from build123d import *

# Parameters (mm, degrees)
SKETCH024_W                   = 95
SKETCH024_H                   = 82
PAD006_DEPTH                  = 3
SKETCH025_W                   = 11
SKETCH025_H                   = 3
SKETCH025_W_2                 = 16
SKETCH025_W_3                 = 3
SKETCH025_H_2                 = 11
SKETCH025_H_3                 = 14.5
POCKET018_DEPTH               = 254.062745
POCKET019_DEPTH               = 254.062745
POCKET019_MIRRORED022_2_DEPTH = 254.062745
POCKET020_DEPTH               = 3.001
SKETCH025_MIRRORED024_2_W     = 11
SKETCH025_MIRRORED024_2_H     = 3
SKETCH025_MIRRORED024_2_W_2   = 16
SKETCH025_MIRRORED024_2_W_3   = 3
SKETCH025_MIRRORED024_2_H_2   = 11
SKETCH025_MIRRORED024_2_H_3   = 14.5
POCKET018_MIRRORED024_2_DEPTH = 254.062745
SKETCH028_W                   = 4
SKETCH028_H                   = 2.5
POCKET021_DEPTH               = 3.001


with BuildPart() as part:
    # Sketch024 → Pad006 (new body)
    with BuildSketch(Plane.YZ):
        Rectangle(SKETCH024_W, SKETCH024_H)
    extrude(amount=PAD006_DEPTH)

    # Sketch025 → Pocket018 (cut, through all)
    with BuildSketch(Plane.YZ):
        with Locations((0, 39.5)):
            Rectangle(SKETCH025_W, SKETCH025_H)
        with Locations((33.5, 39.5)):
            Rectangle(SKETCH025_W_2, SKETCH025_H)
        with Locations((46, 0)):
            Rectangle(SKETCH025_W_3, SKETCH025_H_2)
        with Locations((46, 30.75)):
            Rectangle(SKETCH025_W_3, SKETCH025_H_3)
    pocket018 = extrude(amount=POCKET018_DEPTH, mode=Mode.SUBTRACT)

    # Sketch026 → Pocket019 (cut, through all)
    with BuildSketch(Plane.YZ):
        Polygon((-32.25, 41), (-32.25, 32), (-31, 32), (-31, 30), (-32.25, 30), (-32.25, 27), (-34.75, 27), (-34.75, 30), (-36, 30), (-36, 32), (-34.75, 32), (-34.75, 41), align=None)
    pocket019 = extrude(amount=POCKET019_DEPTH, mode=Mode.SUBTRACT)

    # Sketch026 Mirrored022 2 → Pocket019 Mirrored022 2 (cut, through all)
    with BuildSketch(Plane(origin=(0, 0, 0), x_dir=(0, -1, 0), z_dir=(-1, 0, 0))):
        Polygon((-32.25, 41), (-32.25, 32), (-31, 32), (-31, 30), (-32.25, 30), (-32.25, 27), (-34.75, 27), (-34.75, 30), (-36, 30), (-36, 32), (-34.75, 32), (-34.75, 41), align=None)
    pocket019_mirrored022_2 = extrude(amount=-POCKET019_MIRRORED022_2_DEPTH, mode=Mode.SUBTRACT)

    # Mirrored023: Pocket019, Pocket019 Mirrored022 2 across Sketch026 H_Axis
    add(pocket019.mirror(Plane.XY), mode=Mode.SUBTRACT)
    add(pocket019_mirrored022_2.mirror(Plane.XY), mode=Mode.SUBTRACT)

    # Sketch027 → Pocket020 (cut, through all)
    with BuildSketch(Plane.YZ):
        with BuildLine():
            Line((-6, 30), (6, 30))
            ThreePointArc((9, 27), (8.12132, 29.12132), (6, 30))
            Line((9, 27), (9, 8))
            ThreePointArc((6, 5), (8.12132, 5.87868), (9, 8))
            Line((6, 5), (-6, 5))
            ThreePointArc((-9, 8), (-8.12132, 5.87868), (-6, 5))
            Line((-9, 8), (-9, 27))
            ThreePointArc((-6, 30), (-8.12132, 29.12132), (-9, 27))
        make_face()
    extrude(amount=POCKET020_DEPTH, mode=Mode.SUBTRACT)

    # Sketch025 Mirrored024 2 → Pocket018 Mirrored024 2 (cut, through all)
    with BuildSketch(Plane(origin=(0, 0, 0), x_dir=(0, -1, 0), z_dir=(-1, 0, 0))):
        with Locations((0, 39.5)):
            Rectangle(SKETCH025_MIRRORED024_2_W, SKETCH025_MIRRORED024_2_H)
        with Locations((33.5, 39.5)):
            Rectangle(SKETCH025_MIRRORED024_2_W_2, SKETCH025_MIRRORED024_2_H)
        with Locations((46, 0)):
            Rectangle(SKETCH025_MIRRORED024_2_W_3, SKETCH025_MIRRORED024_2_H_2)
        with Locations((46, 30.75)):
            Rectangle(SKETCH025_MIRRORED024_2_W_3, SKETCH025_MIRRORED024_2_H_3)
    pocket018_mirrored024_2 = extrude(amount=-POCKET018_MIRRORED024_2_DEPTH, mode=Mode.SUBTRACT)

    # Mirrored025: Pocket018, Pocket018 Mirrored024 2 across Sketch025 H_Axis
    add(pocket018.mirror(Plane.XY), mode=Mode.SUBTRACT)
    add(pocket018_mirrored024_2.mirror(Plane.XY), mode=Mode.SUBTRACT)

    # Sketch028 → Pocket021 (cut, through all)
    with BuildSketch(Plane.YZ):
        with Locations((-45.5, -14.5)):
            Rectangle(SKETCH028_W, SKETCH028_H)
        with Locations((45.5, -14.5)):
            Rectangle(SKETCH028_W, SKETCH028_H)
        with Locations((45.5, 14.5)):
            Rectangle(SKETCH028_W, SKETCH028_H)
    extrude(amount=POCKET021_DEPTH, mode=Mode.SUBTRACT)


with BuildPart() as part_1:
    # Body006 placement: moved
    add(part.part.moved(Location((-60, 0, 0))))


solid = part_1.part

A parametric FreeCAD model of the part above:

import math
import FreeCAD as App
import Part
import Sketcher

V = App.Vector

doc = App.newDocument("Part")
body = doc.addObject("PartDesign::Body", "Body")

# Sketch on YZ plane
sketch1 = body.newObject("Sketcher::SketchObject", "Sketch")
sketch1.AttachmentSupport = (doc.getObject("YZ_Plane"), [""])
sketch1.MapMode = "FlatFace"
sketch1.addGeometry([
    Part.LineSegment(V(-48, 41, 0), V(-48, -41, 0)),
    Part.LineSegment(V(-48, -41, 0), V(48, -41, 0)),
    Part.LineSegment(V(48, -41, 0), V(48, 41, 0)),
    Part.LineSegment(V(48, 41, 0), V(-48, 41, 0)),
], False)
sketch1.addConstraint([
    Sketcher.Constraint("Coincident", 0, 2, 1, 1),
    Sketcher.Constraint("Coincident", 1, 2, 2, 1),
    Sketcher.Constraint("Coincident", 2, 2, 3, 1),
    Sketcher.Constraint("Coincident", 3, 2, 0, 1),
    Sketcher.Constraint("Vertical", 0),
    Sketcher.Constraint("Horizontal", 1),
    Sketcher.Constraint("Vertical", 2),
    Sketcher.Constraint("Horizontal", 3),
    Sketcher.Constraint("Symmetric", 0, 2, 2, 2, -1, 1),
    Sketcher.Constraint("DistanceX", 1, 1, 1, 2, 95.0),
    Sketcher.Constraint("DistanceY", 0, 2, 0, 1, 82.0),
])
pad1 = body.newObject("PartDesign::Pad", "Pad")
pad1.Profile = sketch1
pad1.Length = 3

# Sketch on YZ plane
sketch2 = body.newObject("Sketcher::SketchObject", "Sketch001")
sketch2.AttachmentSupport = (doc.getObject("YZ_Plane"), [""])
sketch2.MapMode = "FlatFace"
sketch2.addGeometry([
    Part.LineSegment(V(-5.5, 41, 0), V(-5.5, 38, 0)),  # 0
    Part.LineSegment(V(-5.5, 38, 0), V(5.5, 38, 0)),  # 1
    Part.LineSegment(V(5.5, 38, 0), V(5.5, 41, 0)),  # 2
    Part.LineSegment(V(5.5, 41, 0), V(-5.5, 41, 0)),  # 3
    Part.LineSegment(V(25.5, 41, 0), V(25.5, 38, 0)),  # 4
    Part.LineSegment(V(25.5, 38, 0), V(41.5, 38, 0)),  # 5
    Part.LineSegment(V(41.5, 38, 0), V(41.5, 41, 0)),  # 6
    Part.LineSegment(V(41.5, 41, 0), V(25.5, 41, 0)),  # 7
    Part.LineSegment(V(44.5, 5.5, 0), V(44.5, -5.5, 0)),  # 8
    Part.LineSegment(V(44.5, -5.5, 0), V(47.5, -5.5, 0)),  # 9
    Part.LineSegment(V(47.5, -5.5, 0), V(47.5, 5.5, 0)),  # 10
    Part.LineSegment(V(47.5, 5.5, 0), V(44.5, 5.5, 0)),  # 11
    Part.LineSegment(V(44.5, 38, 0), V(44.5, 23.5, 0)),  # 12
    Part.LineSegment(V(44.5, 23.5, 0), V(47.5, 23.5, 0)),  # 13
    Part.LineSegment(V(47.5, 23.5, 0), V(47.5, 38, 0)),  # 14
    Part.LineSegment(V(47.5, 38, 0), V(44.5, 38, 0)),  # 15
], False)
sketch2.addConstraint([
    Sketcher.Constraint("Coincident", 0, 2, 1, 1),
    Sketcher.Constraint("Coincident", 1, 2, 2, 1),
    Sketcher.Constraint("Coincident", 2, 2, 3, 1),
    Sketcher.Constraint("Coincident", 3, 2, 0, 1),
    Sketcher.Constraint("Coincident", 4, 2, 5, 1),
    Sketcher.Constraint("Coincident", 5, 2, 6, 1),
    Sketcher.Constraint("Coincident", 6, 2, 7, 1),
    Sketcher.Constraint("Coincident", 7, 2, 4, 1),
    Sketcher.Constraint("Coincident", 8, 2, 9, 1),
    Sketcher.Constraint("Coincident", 9, 2, 10, 1),
    Sketcher.Constraint("Coincident", 10, 2, 11, 1),
    Sketcher.Constraint("Coincident", 11, 2, 8, 1),
    Sketcher.Constraint("Coincident", 12, 2, 13, 1),
    Sketcher.Constraint("Coincident", 13, 2, 14, 1),
    Sketcher.Constraint("Coincident", 14, 2, 15, 1),
    Sketcher.Constraint("Coincident", 15, 2, 12, 1),
    Sketcher.Constraint("Vertical", 0),
    Sketcher.Constraint("Horizontal", 1),
    Sketcher.Constraint("Vertical", 2),
    Sketcher.Constraint("Horizontal", 3),
    Sketcher.Constraint("Vertical", 4),
    Sketcher.Constraint("Horizontal", 5),
    Sketcher.Constraint("Vertical", 6),
    Sketcher.Constraint("Horizontal", 7),
    Sketcher.Constraint("Vertical", 8),
    Sketcher.Constraint("Horizontal", 9),
    Sketcher.Constraint("Vertical", 10),
    Sketcher.Constraint("Horizontal", 11),
    Sketcher.Constraint("Vertical", 12),
    Sketcher.Constraint("Horizontal", 13),
    Sketcher.Constraint("Vertical", 14),
    Sketcher.Constraint("Horizontal", 15),
    Sketcher.Constraint("Horizontal", 1, 2, 4, 2),
    Sketcher.Constraint("Horizontal", 3, 2, 6, 2),
    Sketcher.Constraint("Horizontal", 5, 2, 14, 2),
    Sketcher.Constraint("Vertical", 11, 2, 12, 2),
    Sketcher.Constraint("Vertical", 10, 2, 13, 2),
    Sketcher.Constraint("Equal", 15, 0),
    Sketcher.Constraint("Equal", 3, 8),
    Sketcher.Constraint("DistanceX", 1, 1, 1, 2, 11.0),
    Sketcher.Constraint("DistanceX", 5, 1, 5, 2, 16.0),
    Sketcher.Constraint("DistanceX", 9, 1, 9, 2, 3.0),
    Sketcher.Constraint("DistanceY", 12, 2, 12, 1, 14.5),
    Sketcher.Constraint("DistanceY", -1, 1, 0, 2, 38.0),
    Sketcher.Constraint("DistanceX", 1, 2, 4, 2, 20.0),
    Sketcher.Constraint("DistanceX", 5, 2, 8, 2, 3.0),
    Sketcher.Constraint("DistanceY", 11, 2, 12, 2, 18.0),
    Sketcher.Constraint("DistanceX", 0, 2, -1, 1, 5.5),
])
pocket1 = body.newObject("PartDesign::Pocket", "Pocket")
pocket1.Profile = sketch2
pocket1.Type = "ThroughAll"
pocket1.Reversed = True

# Sketch on YZ plane
sketch3 = body.newObject("Sketcher::SketchObject", "Sketch002")
sketch3.AttachmentSupport = (doc.getObject("YZ_Plane"), [""])
sketch3.MapMode = "FlatFace"
sketch3.addGeometry([
    Part.LineSegment(V(-32.2, 32, 0), V(-32.2, 41, 0)),  # 0
    Part.LineSegment(V(-32.2, 41, 0), V(-34.8, 41, 0)),  # 1
    Part.LineSegment(V(-34.8, 41, 0), V(-34.8, 32, 0)),  # 2
    Part.LineSegment(V(-34.8, 32, 0), V(-36, 32, 0)),  # 3
    Part.LineSegment(V(-36, 32, 0), V(-36, 30, 0)),  # 4
    Part.LineSegment(V(-36, 30, 0), V(-34.8, 30, 0)),  # 5
    Part.LineSegment(V(-34.8, 30, 0), V(-34.8, 27, 0)),  # 6
    Part.LineSegment(V(-34.8, 27, 0), V(-32.2, 27, 0)),  # 7
    Part.LineSegment(V(-32.2, 27, 0), V(-32.2, 30, 0)),  # 8
    Part.LineSegment(V(-32.2, 30, 0), V(-31, 30, 0)),  # 9
    Part.LineSegment(V(-31, 30, 0), V(-31, 32, 0)),  # 10
    Part.LineSegment(V(-31, 32, 0), V(-32.2, 32, 0)),  # 11
], False)
sketch3.addConstraint([
    Sketcher.Constraint("Coincident", 0, 2, 1, 1),
    Sketcher.Constraint("Coincident", 1, 2, 2, 1),
    Sketcher.Constraint("Coincident", 2, 2, 3, 1),
    Sketcher.Constraint("Coincident", 3, 2, 4, 1),
    Sketcher.Constraint("Coincident", 4, 2, 5, 1),
    Sketcher.Constraint("Coincident", 5, 2, 6, 1),
    Sketcher.Constraint("Coincident", 6, 2, 7, 1),
    Sketcher.Constraint("Coincident", 7, 2, 8, 1),
    Sketcher.Constraint("Coincident", 8, 2, 9, 1),
    Sketcher.Constraint("Coincident", 9, 2, 10, 1),
    Sketcher.Constraint("Coincident", 10, 2, 11, 1),
    Sketcher.Constraint("Coincident", 11, 2, 0, 1),
    Sketcher.Constraint("Vertical", 0),
    Sketcher.Constraint("Horizontal", 1),
    Sketcher.Constraint("Vertical", 2),
    Sketcher.Constraint("Horizontal", 3),
    Sketcher.Constraint("Vertical", 4),
    Sketcher.Constraint("Horizontal", 5),
    Sketcher.Constraint("Vertical", 6),
    Sketcher.Constraint("Horizontal", 7),
    Sketcher.Constraint("Vertical", 8),
    Sketcher.Constraint("Horizontal", 9),
    Sketcher.Constraint("Vertical", 10),
    Sketcher.Constraint("Horizontal", 11),
    Sketcher.Constraint("Horizontal", 5, 2, 8, 2),
    Sketcher.Constraint("Horizontal", 3, 2, 10, 2),
    Sketcher.Constraint("Vertical", 2, 2, 5, 2),
    Sketcher.Constraint("Vertical", 0, 2, 7, 2),
    Sketcher.Constraint("Equal", 5, 9),
    Sketcher.Constraint("DistanceY", 0, 1, 0, 2, 9.0),
    Sketcher.Constraint("DistanceY", 4, 2, 4, 1, 2.0),
    Sketcher.Constraint("DistanceY", 6, 2, 6, 1, 3.0),
    Sketcher.Constraint("DistanceX", 1, 2, 1, 1, 2.5),
    Sketcher.Constraint("DistanceY", -1, 1, 0, 2, 41.0),
    Sketcher.Constraint("DistanceX", 3, 2, -1, 1, 36.0),
    Sketcher.Constraint("DistanceX", 9, 2, -1, 1, 31.0),
])
pocket2 = body.newObject("PartDesign::Pocket", "Pocket001")
pocket2.Profile = sketch3
pocket2.Type = "ThroughAll"
pocket2.Reversed = True

# Sketch on YZ plane
sketch4 = body.newObject("Sketcher::SketchObject", "Sketch003")
sketch4.AttachmentSupport = (doc.getObject("YZ_Plane"), [""])
sketch4.MapMode = "FlatFace"
sketch4.addGeometry([
    Part.LineSegment(V(32.2, 32, 0), V(32.2, 41, 0)),  # 0
    Part.LineSegment(V(32.2, 41, 0), V(34.8, 41, 0)),  # 1
    Part.LineSegment(V(34.8, 41, 0), V(34.8, 32, 0)),  # 2
    Part.LineSegment(V(34.8, 32, 0), V(36, 32, 0)),  # 3
    Part.LineSegment(V(36, 32, 0), V(36, 30, 0)),  # 4
    Part.LineSegment(V(36, 30, 0), V(34.8, 30, 0)),  # 5
    Part.LineSegment(V(34.8, 30, 0), V(34.8, 27, 0)),  # 6
    Part.LineSegment(V(34.8, 27, 0), V(32.2, 27, 0)),  # 7
    Part.LineSegment(V(32.2, 27, 0), V(32.2, 30, 0)),  # 8
    Part.LineSegment(V(32.2, 30, 0), V(31, 30, 0)),  # 9
    Part.LineSegment(V(31, 30, 0), V(31, 32, 0)),  # 10
    Part.LineSegment(V(31, 32, 0), V(32.2, 32, 0)),  # 11
], False)
sketch4.addConstraint([
    Sketcher.Constraint("Coincident", 0, 2, 1, 1),
    Sketcher.Constraint("Coincident", 1, 2, 2, 1),
    Sketcher.Constraint("Coincident", 2, 2, 3, 1),
    Sketcher.Constraint("Coincident", 3, 2, 4, 1),
    Sketcher.Constraint("Coincident", 4, 2, 5, 1),
    Sketcher.Constraint("Coincident", 5, 2, 6, 1),
    Sketcher.Constraint("Coincident", 6, 2, 7, 1),
    Sketcher.Constraint("Coincident", 7, 2, 8, 1),
    Sketcher.Constraint("Coincident", 8, 2, 9, 1),
    Sketcher.Constraint("Coincident", 9, 2, 10, 1),
    Sketcher.Constraint("Coincident", 10, 2, 11, 1),
    Sketcher.Constraint("Coincident", 11, 2, 0, 1),
    Sketcher.Constraint("Vertical", 0),
    Sketcher.Constraint("Horizontal", 1),
    Sketcher.Constraint("Vertical", 2),
    Sketcher.Constraint("Horizontal", 3),
    Sketcher.Constraint("Vertical", 4),
    Sketcher.Constraint("Horizontal", 5),
    Sketcher.Constraint("Vertical", 6),
    Sketcher.Constraint("Horizontal", 7),
    Sketcher.Constraint("Vertical", 8),
    Sketcher.Constraint("Horizontal", 9),
    Sketcher.Constraint("Vertical", 10),
    Sketcher.Constraint("Horizontal", 11),
    Sketcher.Constraint("Horizontal", 5, 2, 8, 2),
    Sketcher.Constraint("Horizontal", 3, 2, 10, 2),
    Sketcher.Constraint("Vertical", 2, 2, 5, 2),
    Sketcher.Constraint("Vertical", 0, 2, 7, 2),
    Sketcher.Constraint("Equal", 5, 9),
    Sketcher.Constraint("DistanceY", 0, 1, 0, 2, 9.0),
    Sketcher.Constraint("DistanceY", 4, 2, 4, 1, 2.0),
    Sketcher.Constraint("DistanceY", 6, 2, 6, 1, 3.0),
    Sketcher.Constraint("DistanceX", 1, 1, 1, 2, 2.5),
    Sketcher.Constraint("DistanceY", -1, 1, 0, 2, 41.0),
    Sketcher.Constraint("DistanceX", -1, 1, 3, 2, 36.0),
    Sketcher.Constraint("DistanceX", -1, 1, 9, 2, 31.0),
])
pocket3 = body.newObject("PartDesign::Pocket", "Pocket002")
pocket3.Profile = sketch4
pocket3.Type = "ThroughAll"
pocket3.Reversed = True
doc.recompute()

mirrored = body.newObject("PartDesign::Mirrored", "Mirrored")
mirrored.Originals = [pocket2, pocket3]
mirrored.MirrorPlane = (doc.getObject("XY_Plane"), [""])
body.Tip = mirrored

# Sketch on YZ plane
sketch5 = body.newObject("Sketcher::SketchObject", "Sketch004")
sketch5.AttachmentSupport = (doc.getObject("YZ_Plane"), [""])
sketch5.MapMode = "FlatFace"
sketch5.addGeometry([
    Part.LineSegment(V(6, 30, 0), V(-6, 30, 0)),  # 0
    Part.ArcOfCircle(Part.Circle(V(-6, 27, 0), V(0, 0, 1), 3), math.radians(90), math.radians(180)),  # 1
    Part.LineSegment(V(-9, 27, 0), V(-9, 8, 0)),  # 2
    Part.ArcOfCircle(Part.Circle(V(-6, 8, 0), V(0, 0, 1), 3), math.radians(-180), math.radians(-90)),  # 3
    Part.LineSegment(V(-6, 5, 0), V(6, 5, 0)),  # 4
    Part.ArcOfCircle(Part.Circle(V(6, 8, 0), V(0, 0, 1), 3), math.radians(-90), math.radians(0)),  # 5
    Part.LineSegment(V(9, 8, 0), V(9, 27, 0)),  # 6
    Part.ArcOfCircle(Part.Circle(V(6, 27, 0), V(0, 0, 1), 3), math.radians(0), math.radians(90)),  # 7
], False)
sketch5.addConstraint([
    Sketcher.Constraint("Tangent", 0, 2, 1, 1),
    Sketcher.Constraint("Tangent", 1, 2, 2, 1),
    Sketcher.Constraint("Tangent", 2, 2, 3, 1),
    Sketcher.Constraint("Tangent", 3, 2, 4, 1),
    Sketcher.Constraint("Tangent", 4, 2, 5, 1),
    Sketcher.Constraint("Tangent", 5, 2, 6, 1),
    Sketcher.Constraint("Tangent", 6, 2, 7, 1),
    Sketcher.Constraint("Tangent", 7, 2, 0, 1),
    Sketcher.Constraint("Horizontal", 0),
    Sketcher.Constraint("Vertical", 2),
    Sketcher.Constraint("Horizontal", 4),
    Sketcher.Constraint("Vertical", 6),
    Sketcher.Constraint("Equal", 1, 3),
    Sketcher.Constraint("Equal", 3, 5),
    Sketcher.Constraint("Equal", 5, 7),
    Sketcher.Constraint("Radius", 1, 3.000001),
    Sketcher.Constraint("DistanceX", 0, 2, 0, 1, 12.0),
    Sketcher.Constraint("DistanceY", 2, 2, 2, 1, 19.0),
    Sketcher.Constraint("DistanceX", 1, 3, -1, 1, 5.999999),
    Sketcher.Constraint("DistanceY", -1, 1, 1, 3, 26.999999),
])
pocket4 = body.newObject("PartDesign::Pocket", "Pocket003")
pocket4.Profile = sketch5
pocket4.Type = "ThroughAll"
pocket4.Reversed = True

# Sketch on YZ plane
sketch6 = body.newObject("Sketcher::SketchObject", "Sketch005")
sketch6.AttachmentSupport = (doc.getObject("YZ_Plane"), [""])
sketch6.MapMode = "FlatFace"
sketch6.addGeometry([
    Part.LineSegment(V(5.5, 41, 0), V(5.5, 38, 0)),  # 0
    Part.LineSegment(V(5.5, 38, 0), V(-5.5, 38, 0)),  # 1
    Part.LineSegment(V(-5.5, 38, 0), V(-5.5, 41, 0)),  # 2
    Part.LineSegment(V(-5.5, 41, 0), V(5.5, 41, 0)),  # 3
    Part.LineSegment(V(-25.5, 41, 0), V(-25.5, 38, 0)),  # 4
    Part.LineSegment(V(-25.5, 38, 0), V(-41.5, 38, 0)),  # 5
    Part.LineSegment(V(-41.5, 38, 0), V(-41.5, 41, 0)),  # 6
    Part.LineSegment(V(-41.5, 41, 0), V(-25.5, 41, 0)),  # 7
    Part.LineSegment(V(-44.5, 5.5, 0), V(-44.5, -5.5, 0)),  # 8
    Part.LineSegment(V(-44.5, -5.5, 0), V(-47.5, -5.5, 0)),  # 9
    Part.LineSegment(V(-47.5, -5.5, 0), V(-47.5, 5.5, 0)),  # 10
    Part.LineSegment(V(-47.5, 5.5, 0), V(-44.5, 5.5, 0)),  # 11
    Part.LineSegment(V(-44.5, 38, 0), V(-44.5, 23.5, 0)),  # 12
    Part.LineSegment(V(-44.5, 23.5, 0), V(-47.5, 23.5, 0)),  # 13
    Part.LineSegment(V(-47.5, 23.5, 0), V(-47.5, 38, 0)),  # 14
    Part.LineSegment(V(-47.5, 38, 0), V(-44.5, 38, 0)),  # 15
], False)
sketch6.addConstraint([
    Sketcher.Constraint("Coincident", 0, 2, 1, 1),
    Sketcher.Constraint("Coincident", 1, 2, 2, 1),
    Sketcher.Constraint("Coincident", 2, 2, 3, 1),
    Sketcher.Constraint("Coincident", 3, 2, 0, 1),
    Sketcher.Constraint("Coincident", 4, 2, 5, 1),
    Sketcher.Constraint("Coincident", 5, 2, 6, 1),
    Sketcher.Constraint("Coincident", 6, 2, 7, 1),
    Sketcher.Constraint("Coincident", 7, 2, 4, 1),
    Sketcher.Constraint("Coincident", 8, 2, 9, 1),
    Sketcher.Constraint("Coincident", 9, 2, 10, 1),
    Sketcher.Constraint("Coincident", 10, 2, 11, 1),
    Sketcher.Constraint("Coincident", 11, 2, 8, 1),
    Sketcher.Constraint("Coincident", 12, 2, 13, 1),
    Sketcher.Constraint("Coincident", 13, 2, 14, 1),
    Sketcher.Constraint("Coincident", 14, 2, 15, 1),
    Sketcher.Constraint("Coincident", 15, 2, 12, 1),
    Sketcher.Constraint("Vertical", 0),
    Sketcher.Constraint("Horizontal", 1),
    Sketcher.Constraint("Vertical", 2),
    Sketcher.Constraint("Horizontal", 3),
    Sketcher.Constraint("Vertical", 4),
    Sketcher.Constraint("Horizontal", 5),
    Sketcher.Constraint("Vertical", 6),
    Sketcher.Constraint("Horizontal", 7),
    Sketcher.Constraint("Vertical", 8),
    Sketcher.Constraint("Horizontal", 9),
    Sketcher.Constraint("Vertical", 10),
    Sketcher.Constraint("Horizontal", 11),
    Sketcher.Constraint("Vertical", 12),
    Sketcher.Constraint("Horizontal", 13),
    Sketcher.Constraint("Vertical", 14),
    Sketcher.Constraint("Horizontal", 15),
    Sketcher.Constraint("Horizontal", 1, 2, 4, 2),
    Sketcher.Constraint("Horizontal", 3, 2, 6, 2),
    Sketcher.Constraint("Horizontal", 5, 2, 14, 2),
    Sketcher.Constraint("Vertical", 11, 2, 12, 2),
    Sketcher.Constraint("Vertical", 10, 2, 13, 2),
    Sketcher.Constraint("Equal", 15, 0),
    Sketcher.Constraint("Equal", 3, 8),
    Sketcher.Constraint("DistanceX", 1, 2, 1, 1, 11.0),
    Sketcher.Constraint("DistanceX", 5, 2, 5, 1, 16.0),
    Sketcher.Constraint("DistanceX", 9, 2, 9, 1, 3.0),
    Sketcher.Constraint("DistanceY", 12, 2, 12, 1, 14.5),
    Sketcher.Constraint("DistanceY", -1, 1, 0, 2, 38.0),
    Sketcher.Constraint("DistanceX", 4, 2, 1, 2, 20.0),
    Sketcher.Constraint("DistanceX", 8, 2, 5, 2, 3.0),
    Sketcher.Constraint("DistanceY", 11, 2, 12, 2, 18.0),
    Sketcher.Constraint("DistanceX", -1, 1, 0, 2, 5.5),
])
pocket5 = body.newObject("PartDesign::Pocket", "Pocket004")
pocket5.Profile = sketch6
pocket5.Type = "ThroughAll"
pocket5.Reversed = True
doc.recompute()

mirrored2 = body.newObject("PartDesign::Mirrored", "Mirrored001")
mirrored2.Originals = [pocket1, pocket5]
mirrored2.MirrorPlane = (doc.getObject("XY_Plane"), [""])
body.Tip = mirrored2

# Sketch on YZ plane
sketch7 = body.newObject("Sketcher::SketchObject", "Sketch006")
sketch7.AttachmentSupport = (doc.getObject("YZ_Plane"), [""])
sketch7.MapMode = "FlatFace"
sketch7.addGeometry([
    Part.LineSegment(V(-47.5, -13.2, 0), V(-47.5, -15.8, 0)),  # 0
    Part.LineSegment(V(-47.5, -15.8, 0), V(-43.5, -15.8, 0)),  # 1
    Part.LineSegment(V(-43.5, -15.8, 0), V(-43.5, -13.2, 0)),  # 2
    Part.LineSegment(V(-43.5, -13.2, 0), V(-47.5, -13.2, 0)),  # 3
    Part.LineSegment(V(43.5, -13.2, 0), V(43.5, -15.8, 0)),  # 4
    Part.LineSegment(V(43.5, -15.8, 0), V(47.5, -15.8, 0)),  # 5
    Part.LineSegment(V(47.5, -15.8, 0), V(47.5, -13.2, 0)),  # 6
    Part.LineSegment(V(47.5, -13.2, 0), V(43.5, -13.2, 0)),  # 7
    Part.LineSegment(V(43.5, 15.8, 0), V(43.5, 13.2, 0)),  # 8
    Part.LineSegment(V(43.5, 13.2, 0), V(47.5, 13.2, 0)),  # 9
    Part.LineSegment(V(47.5, 13.2, 0), V(47.5, 15.8, 0)),  # 10
    Part.LineSegment(V(47.5, 15.8, 0), V(43.5, 15.8, 0)),  # 11
], False)
sketch7.addConstraint([
    Sketcher.Constraint("Coincident", 0, 2, 1, 1),
    Sketcher.Constraint("Coincident", 1, 2, 2, 1),
    Sketcher.Constraint("Coincident", 2, 2, 3, 1),
    Sketcher.Constraint("Coincident", 3, 2, 0, 1),
    Sketcher.Constraint("Coincident", 4, 2, 5, 1),
    Sketcher.Constraint("Coincident", 5, 2, 6, 1),
    Sketcher.Constraint("Coincident", 6, 2, 7, 1),
    Sketcher.Constraint("Coincident", 7, 2, 4, 1),
    Sketcher.Constraint("Coincident", 8, 2, 9, 1),
    Sketcher.Constraint("Coincident", 9, 2, 10, 1),
    Sketcher.Constraint("Coincident", 10, 2, 11, 1),
    Sketcher.Constraint("Coincident", 11, 2, 8, 1),
    Sketcher.Constraint("Vertical", 0),
    Sketcher.Constraint("Horizontal", 1),
    Sketcher.Constraint("Vertical", 2),
    Sketcher.Constraint("Horizontal", 3),
    Sketcher.Constraint("Vertical", 4),
    Sketcher.Constraint("Horizontal", 5),
    Sketcher.Constraint("Vertical", 6),
    Sketcher.Constraint("Horizontal", 7),
    Sketcher.Constraint("Vertical", 8),
    Sketcher.Constraint("Horizontal", 9),
    Sketcher.Constraint("Vertical", 10),
    Sketcher.Constraint("Horizontal", 11),
    Sketcher.Constraint("Symmetric", 2, 2, 8, 2, -1, 1),
    Sketcher.Constraint("Symmetric", 0, 2, 10, 2, -1, 1),
    Sketcher.Constraint("Symmetric", 1, 2, 4, 2, -2),
    Sketcher.Constraint("Symmetric", 3, 2, 6, 2, -2),
    Sketcher.Constraint("DistanceX", 1, 1, 1, 2, 4.0),
    Sketcher.Constraint("DistanceY", 0, 2, 0, 1, 2.5),
    Sketcher.Constraint("DistanceX", 1, 2, 4, 2, 87.0),
    Sketcher.Constraint("DistanceY", 4, 2, 8, 2, 29.0),
])
pocket6 = body.newObject("PartDesign::Pocket", "Pocket005")
pocket6.Profile = sketch7
pocket6.Type = "ThroughAll"
pocket6.Reversed = True
body2 = doc.addObject("PartDesign::Body", "Body001")
doc.recompute()

body.Placement = App.Placement(V(-60, 0, 0), App.Rotation(V(0, 0, 1), 0))
boolean = body2.newObject("PartDesign::Boolean", "Boolean")
boolean.Type = "Fuse"
boolean.addObjects([body])

doc.recompute()
